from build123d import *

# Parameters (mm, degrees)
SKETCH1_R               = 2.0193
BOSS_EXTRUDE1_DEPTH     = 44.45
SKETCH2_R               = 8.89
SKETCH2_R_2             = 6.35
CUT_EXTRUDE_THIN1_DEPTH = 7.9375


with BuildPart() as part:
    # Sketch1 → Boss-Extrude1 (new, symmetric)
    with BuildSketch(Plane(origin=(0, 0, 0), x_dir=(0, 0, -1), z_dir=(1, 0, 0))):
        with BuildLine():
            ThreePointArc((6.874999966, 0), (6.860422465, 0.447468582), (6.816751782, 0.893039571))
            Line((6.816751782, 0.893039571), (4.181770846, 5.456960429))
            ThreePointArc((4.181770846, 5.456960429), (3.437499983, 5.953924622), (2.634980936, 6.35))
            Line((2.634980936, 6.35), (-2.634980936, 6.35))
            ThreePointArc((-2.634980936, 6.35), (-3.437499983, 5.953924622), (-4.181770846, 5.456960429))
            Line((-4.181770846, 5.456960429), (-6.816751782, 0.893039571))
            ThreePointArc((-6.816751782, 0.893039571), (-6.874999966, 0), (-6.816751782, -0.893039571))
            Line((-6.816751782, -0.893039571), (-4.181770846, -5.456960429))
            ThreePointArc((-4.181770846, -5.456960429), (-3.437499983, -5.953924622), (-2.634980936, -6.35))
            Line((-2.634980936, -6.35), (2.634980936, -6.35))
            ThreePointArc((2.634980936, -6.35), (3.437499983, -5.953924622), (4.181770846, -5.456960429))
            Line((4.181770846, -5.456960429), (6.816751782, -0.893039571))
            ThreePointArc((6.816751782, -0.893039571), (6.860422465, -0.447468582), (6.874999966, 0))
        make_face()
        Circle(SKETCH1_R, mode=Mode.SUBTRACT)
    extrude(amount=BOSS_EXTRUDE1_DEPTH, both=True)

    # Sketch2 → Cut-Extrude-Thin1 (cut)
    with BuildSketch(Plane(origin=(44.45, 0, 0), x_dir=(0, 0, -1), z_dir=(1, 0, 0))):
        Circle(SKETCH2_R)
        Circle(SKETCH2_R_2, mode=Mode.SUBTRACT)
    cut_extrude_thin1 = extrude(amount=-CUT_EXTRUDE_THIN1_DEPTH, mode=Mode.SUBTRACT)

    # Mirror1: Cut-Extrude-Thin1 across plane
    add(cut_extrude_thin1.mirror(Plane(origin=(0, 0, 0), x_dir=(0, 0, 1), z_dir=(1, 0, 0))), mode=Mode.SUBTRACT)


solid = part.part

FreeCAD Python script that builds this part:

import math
import FreeCAD as App
import Part
import Sketcher
Q = App.Units.Quantity

doc = App.newDocument("Part")
body = doc.addObject("PartDesign::Body", "Body")

# Sketch on YZ plane
sketch1 = doc.addObject("Sketcher::SketchObject", "Sketch")
body.addObject(sketch1)
sketch1.AttachmentSupport = (doc.YZ_Plane, [""])
sketch1.MapMode = "FlatFace"
sketch1.addGeometry([
    Part.ArcOfCircle(Part.Circle(App.Vector(0, 0, 0), App.Vector(0, 0, 1), 6.9), math.radians(-90), math.radians(-82.54)),  # 0
    Part.LineSegment(App.Vector(0.9, -6.8, 0), App.Vector(5.5, -4.2, 0)),  # 1
    Part.ArcOfCircle(Part.Circle(App.Vector(0, 0, 0), App.Vector(0, 0, 1), 6.9), math.radians(-37.46), math.radians(-22.54)),  # 2
    Part.LineSegment(App.Vector(6.3, -2.6, 0), App.Vector(6.3, 2.6, 0)),  # 3
    Part.ArcOfCircle(Part.Circle(App.Vector(0, 0, 0), App.Vector(0, 0, 1), 6.9), math.radians(22.54), math.radians(37.46)),  # 4
    Part.LineSegment(App.Vector(5.5, 4.2, 0), App.Vector(0.9, 6.8, 0)),  # 5
    Part.ArcOfCircle(Part.Circle(App.Vector(0, 0, 0), App.Vector(0, 0, 1), 6.9), math.radians(82.54), math.radians(97.46)),  # 6
    Part.LineSegment(App.Vector(-0.9, 6.8, 0), App.Vector(-5.5, 4.2, 0)),  # 7
    Part.ArcOfCircle(Part.Circle(App.Vector(0, 0, 0), App.Vector(0, 0, 1), 6.9), math.radians(142.54), math.radians(157.46)),  # 8
    Part.LineSegment(App.Vector(-6.3, 2.6, 0), App.Vector(-6.3, -2.6, 0)),  # 9
    Part.ArcOfCircle(Part.Circle(App.Vector(0, 0, 0), App.Vector(0, 0, 1), 6.9), math.radians(-157.46), math.radians(-142.54)),  # 10
    Part.LineSegment(App.Vector(-5.5, -4.2, 0), App.Vector(-0.9, -6.8, 0)),  # 11
    Part.ArcOfCircle(Part.Circle(App.Vector(0, 0, 0), App.Vector(0, 0, 1), 6.9), math.radians(-97.46), math.radians(-90)),  # 12
    Part.Circle(App.Vector(0, 0, 0), App.Vector(0, 0, 1), 2),  # 13
], False)
sketch1.addConstraint([
    Sketcher.Constraint("Coincident", 0, 2, 1, 1),
    Sketcher.Constraint("Coincident", 1, 2, 2, 1),
    Sketcher.Constraint("Coincident", 2, 2, 3, 1),
    Sketcher.Constraint("Coincident", 3, 2, 4, 1),
    Sketcher.Constraint("Coincident", 4, 2, 5, 1),
    Sketcher.Constraint("Coincident", 5, 2, 6, 1),
    Sketcher.Constraint("Coincident", 6, 2, 7, 1),
    Sketcher.Constraint("Coincident", 7, 2, 8, 1),
    Sketcher.Constraint("Coincident", 8, 2, 9, 1),
    Sketcher.Constraint("Coincident", 9, 2, 10, 1),
    Sketcher.Constraint("Coincident", 10, 2, 11, 1),
    Sketcher.Constraint("Coincident", 11, 2, 12, 1),
    Sketcher.Constraint("Tangent", 12, 2, 0, 1),
    Sketcher.Constraint("Vertical", 3),
    Sketcher.Constraint("Vertical", 9),
    Sketcher.Constraint("Coincident", 0, 3, -1, 1),
    Sketcher.Constraint("Coincident", 2, 3, -1, 1),
    Sketcher.Constraint("Coincident", 4, 3, -1, 1),
    Sketcher.Constraint("Coincident", 6, 3, -1, 1),
    Sketcher.Constraint("Coincident", 8, 3, -1, 1),
    Sketcher.Constraint("Coincident", 10, 3, -1, 1),
    Sketcher.Constraint("Coincident", 13, 3, -1, 1),
    Sketcher.Constraint("Equal", 0, 2),
    Sketcher.Constraint("Equal", 2, 4),
    Sketcher.Constraint("Equal", 4, 6),
    Sketcher.Constraint("Equal", 6, 8),
    Sketcher.Constraint("Equal", 8, 10),
    Sketcher.Constraint("Equal", 10, 12),
    Sketcher.Constraint("PointOnObject", 12, 2, -2),
    Sketcher.Constraint("Parallel", 1, 7),
    Sketcher.Constraint("Parallel", 5, 11),
    Sketcher.Constraint("Horizontal", 5, 2, 6, 2),
    Sketcher.Constraint("Horizontal", 4, 2, 7, 2),
    Sketcher.Constraint("Horizontal", 3, 2, 8, 2),
    Sketcher.Constraint("Horizontal", 1, 2, 10, 2),
    Sketcher.Constraint("Vertical", 1, 2, 4, 2),
    Sketcher.Constraint("Diameter", 13, Q("0.159 in")),
    Sketcher.Constraint("Angle", 1, Q("30 deg")),
    Sketcher.Constraint("DistanceX", -1, 1, 2, 2, Q("0.25 in")),
    Sketcher.Constraint("Radius", 0, Q("6.875 mm")),
    Sketcher.Constraint("Distance", 1, Q("5.269962 mm")),
])
pad1 = doc.addObject("PartDesign::Pad", "Pad")
body.addObject(pad1)
pad1.Profile = sketch1
pad1.Length = Q("3.5 in")
pad1.Midplane = True

# Sketch on YZ plane
sketch2 = doc.addObject("Sketcher::SketchObject", "Sketch001")
body.addObject(sketch2)
sketch2.AttachmentSupport = (doc.YZ_Plane, [""])
sketch2.MapMode = "FlatFace"
sketch2.AttachmentOffset = App.Placement(App.Vector(0, 0, 1.75 * 25.4), App.Rotation())
sketch2.addGeometry([
    Part.Circle(App.Vector(0, 0, 0), App.Vector(0, 0, 1), 9),
    Part.Circle(App.Vector(0, 0, 0), App.Vector(0, 0, 1), 6),
], False)
sketch2.addConstraint([
    Sketcher.Constraint("Coincident", 0, 3, -1, 1),
    Sketcher.Constraint("Coincident", 1, 3, -1, 1),
    Sketcher.Constraint("Diameter", 0, Q("0.7 in")),
    Sketcher.Constraint("Diameter", 1, Q("0.5 in")),
])
pocket1 = doc.addObject("PartDesign::Pocket", "Pocket")
body.addObject(pocket1)
pocket1.Profile = sketch2
pocket1.Length = Q("0.3125 in")
doc.recompute()

mirrored = doc.addObject("PartDesign::Mirrored", "Mirrored")
body.addObject(mirrored)
mirrored.Originals = [pocket1]
mirrored.MirrorPlane = (doc.YZ_Plane, [""])
body.Tip = mirrored

doc.recompute()
